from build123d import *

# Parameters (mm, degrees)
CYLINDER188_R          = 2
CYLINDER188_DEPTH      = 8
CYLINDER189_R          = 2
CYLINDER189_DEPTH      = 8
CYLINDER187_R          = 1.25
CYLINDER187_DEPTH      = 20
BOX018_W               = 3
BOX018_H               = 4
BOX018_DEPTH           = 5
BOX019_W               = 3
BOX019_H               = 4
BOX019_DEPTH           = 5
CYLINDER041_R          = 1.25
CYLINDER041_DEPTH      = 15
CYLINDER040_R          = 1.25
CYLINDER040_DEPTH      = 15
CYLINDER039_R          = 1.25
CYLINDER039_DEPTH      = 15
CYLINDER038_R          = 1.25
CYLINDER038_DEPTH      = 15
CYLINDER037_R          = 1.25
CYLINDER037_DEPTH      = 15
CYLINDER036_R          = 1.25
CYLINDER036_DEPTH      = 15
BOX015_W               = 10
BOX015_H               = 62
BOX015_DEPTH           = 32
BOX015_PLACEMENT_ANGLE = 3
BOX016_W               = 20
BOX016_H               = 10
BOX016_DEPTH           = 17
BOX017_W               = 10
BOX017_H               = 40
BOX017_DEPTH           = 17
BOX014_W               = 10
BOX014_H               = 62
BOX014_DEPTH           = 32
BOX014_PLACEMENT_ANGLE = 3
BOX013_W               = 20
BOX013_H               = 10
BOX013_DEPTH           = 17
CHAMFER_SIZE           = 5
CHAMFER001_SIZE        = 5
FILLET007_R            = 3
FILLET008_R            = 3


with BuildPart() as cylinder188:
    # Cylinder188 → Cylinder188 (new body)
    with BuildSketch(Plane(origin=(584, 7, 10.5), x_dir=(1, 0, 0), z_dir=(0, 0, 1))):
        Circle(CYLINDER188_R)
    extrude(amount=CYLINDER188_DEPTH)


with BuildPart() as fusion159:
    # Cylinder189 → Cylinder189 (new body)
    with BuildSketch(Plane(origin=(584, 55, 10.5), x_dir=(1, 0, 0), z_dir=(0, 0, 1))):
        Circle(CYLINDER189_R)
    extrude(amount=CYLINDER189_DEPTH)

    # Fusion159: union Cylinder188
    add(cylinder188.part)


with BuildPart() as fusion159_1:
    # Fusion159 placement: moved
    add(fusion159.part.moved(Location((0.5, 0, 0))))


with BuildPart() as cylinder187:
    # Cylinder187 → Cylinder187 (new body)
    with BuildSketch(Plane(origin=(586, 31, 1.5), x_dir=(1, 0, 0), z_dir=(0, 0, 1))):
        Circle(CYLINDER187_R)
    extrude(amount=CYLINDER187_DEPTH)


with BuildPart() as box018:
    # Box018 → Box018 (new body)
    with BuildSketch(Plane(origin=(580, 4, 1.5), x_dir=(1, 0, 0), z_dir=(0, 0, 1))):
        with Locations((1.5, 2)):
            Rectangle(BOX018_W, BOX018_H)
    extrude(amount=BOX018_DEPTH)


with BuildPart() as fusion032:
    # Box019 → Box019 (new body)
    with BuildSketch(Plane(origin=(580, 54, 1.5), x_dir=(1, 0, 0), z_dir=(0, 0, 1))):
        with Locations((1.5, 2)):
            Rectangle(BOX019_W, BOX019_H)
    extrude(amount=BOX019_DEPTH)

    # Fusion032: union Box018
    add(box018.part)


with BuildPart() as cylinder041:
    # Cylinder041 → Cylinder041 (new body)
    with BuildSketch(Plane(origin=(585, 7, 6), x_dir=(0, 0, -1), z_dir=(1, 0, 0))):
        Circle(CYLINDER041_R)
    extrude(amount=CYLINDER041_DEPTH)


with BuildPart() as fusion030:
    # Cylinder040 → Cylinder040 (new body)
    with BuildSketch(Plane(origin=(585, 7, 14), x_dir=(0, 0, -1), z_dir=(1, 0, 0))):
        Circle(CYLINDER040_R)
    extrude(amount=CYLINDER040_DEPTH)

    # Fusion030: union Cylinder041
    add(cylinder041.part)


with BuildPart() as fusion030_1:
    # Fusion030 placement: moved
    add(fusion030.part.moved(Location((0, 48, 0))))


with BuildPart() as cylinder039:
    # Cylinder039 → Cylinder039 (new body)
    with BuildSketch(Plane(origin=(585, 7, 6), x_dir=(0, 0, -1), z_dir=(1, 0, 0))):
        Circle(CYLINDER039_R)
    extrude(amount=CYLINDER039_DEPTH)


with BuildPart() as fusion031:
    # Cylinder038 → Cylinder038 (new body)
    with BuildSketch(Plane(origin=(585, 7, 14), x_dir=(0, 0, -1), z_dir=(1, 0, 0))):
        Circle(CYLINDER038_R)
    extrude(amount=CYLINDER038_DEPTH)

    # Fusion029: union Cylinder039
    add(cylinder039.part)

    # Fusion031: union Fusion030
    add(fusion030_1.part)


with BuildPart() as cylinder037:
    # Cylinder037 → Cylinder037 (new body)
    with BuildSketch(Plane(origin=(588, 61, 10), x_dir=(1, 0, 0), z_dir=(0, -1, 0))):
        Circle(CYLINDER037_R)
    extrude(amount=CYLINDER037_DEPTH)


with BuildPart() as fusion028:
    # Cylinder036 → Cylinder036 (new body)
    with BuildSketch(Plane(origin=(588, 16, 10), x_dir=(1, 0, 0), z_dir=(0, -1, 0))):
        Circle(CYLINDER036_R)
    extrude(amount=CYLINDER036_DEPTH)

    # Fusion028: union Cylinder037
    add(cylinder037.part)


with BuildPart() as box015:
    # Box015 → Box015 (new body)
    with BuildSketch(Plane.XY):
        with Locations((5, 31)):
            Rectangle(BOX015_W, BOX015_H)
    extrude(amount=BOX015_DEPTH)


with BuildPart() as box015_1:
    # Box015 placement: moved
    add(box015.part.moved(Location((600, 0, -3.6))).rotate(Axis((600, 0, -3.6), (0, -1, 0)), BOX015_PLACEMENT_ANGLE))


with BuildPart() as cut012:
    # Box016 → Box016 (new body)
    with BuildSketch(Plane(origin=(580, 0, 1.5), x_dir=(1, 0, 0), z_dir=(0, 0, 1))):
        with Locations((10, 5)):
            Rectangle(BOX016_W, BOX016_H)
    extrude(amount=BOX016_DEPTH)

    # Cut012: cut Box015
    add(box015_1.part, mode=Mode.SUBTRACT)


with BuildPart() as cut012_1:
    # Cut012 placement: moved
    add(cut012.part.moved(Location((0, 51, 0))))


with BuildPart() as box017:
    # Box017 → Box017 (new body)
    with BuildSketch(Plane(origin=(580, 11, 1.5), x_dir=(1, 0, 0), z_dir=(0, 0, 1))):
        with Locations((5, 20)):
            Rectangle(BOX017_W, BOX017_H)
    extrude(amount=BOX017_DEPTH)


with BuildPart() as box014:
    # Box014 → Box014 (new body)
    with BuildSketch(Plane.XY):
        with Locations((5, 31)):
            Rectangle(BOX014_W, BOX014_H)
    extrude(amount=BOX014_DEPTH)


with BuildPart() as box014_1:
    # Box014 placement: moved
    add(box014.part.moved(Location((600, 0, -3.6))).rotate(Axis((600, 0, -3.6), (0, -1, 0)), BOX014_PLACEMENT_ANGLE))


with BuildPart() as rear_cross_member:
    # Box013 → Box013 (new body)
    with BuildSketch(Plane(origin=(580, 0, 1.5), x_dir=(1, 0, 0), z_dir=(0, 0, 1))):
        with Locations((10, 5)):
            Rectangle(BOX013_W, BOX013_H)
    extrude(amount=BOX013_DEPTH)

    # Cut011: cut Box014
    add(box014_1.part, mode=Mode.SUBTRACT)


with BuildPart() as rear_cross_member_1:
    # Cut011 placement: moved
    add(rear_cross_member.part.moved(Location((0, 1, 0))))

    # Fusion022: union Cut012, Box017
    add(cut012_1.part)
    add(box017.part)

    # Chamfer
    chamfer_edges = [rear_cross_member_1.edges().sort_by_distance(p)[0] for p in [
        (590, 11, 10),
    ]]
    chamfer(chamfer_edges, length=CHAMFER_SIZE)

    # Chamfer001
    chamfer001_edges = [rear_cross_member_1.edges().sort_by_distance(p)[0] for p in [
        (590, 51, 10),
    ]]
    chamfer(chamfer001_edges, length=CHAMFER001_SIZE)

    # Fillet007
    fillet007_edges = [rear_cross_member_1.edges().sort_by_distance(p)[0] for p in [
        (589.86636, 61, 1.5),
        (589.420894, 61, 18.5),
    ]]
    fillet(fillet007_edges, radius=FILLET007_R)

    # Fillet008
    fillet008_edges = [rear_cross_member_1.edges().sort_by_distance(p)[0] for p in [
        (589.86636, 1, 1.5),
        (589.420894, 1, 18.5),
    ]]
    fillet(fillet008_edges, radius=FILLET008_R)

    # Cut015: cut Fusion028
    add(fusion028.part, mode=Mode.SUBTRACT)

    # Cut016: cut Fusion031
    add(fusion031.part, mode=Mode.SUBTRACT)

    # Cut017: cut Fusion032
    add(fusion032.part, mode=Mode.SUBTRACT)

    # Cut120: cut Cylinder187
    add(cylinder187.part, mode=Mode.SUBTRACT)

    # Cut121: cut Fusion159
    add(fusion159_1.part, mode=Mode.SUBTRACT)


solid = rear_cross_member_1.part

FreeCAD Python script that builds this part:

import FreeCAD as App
import Part
import Sketcher


def edges_at(feature, points):
    """Names of the edges that pass closest to the given points."""
    edges = feature.Shape.Edges
    near = lambda p: min(range(len(edges)), key=lambda i: edges[i].distToShape(Part.Vertex(*p))[0])
    return sorted({f"Edge{near(p) + 1}" for p in points})

doc = App.newDocument("Part")
params = doc.addObject("Spreadsheet::Sheet", "Params")
for row, (alias, value) in enumerate([
    ("sketch1_diameter", "4 mm"),
    ("pad1_length", "8 mm"),
    ("sketch2_diameter", "4 mm"),
    ("pad2_length", "8 mm"),
    ("sketch3_diameter", "2.5 mm"),
    ("pad3_length", "20 mm"),
    ("sketch4_width", "3 mm"),
    ("sketch4_height", "4 mm"),
    ("pad4_length", "5 mm"),
    ("sketch5_width", "3 mm"),
    ("sketch5_height", "4 mm"),
    ("pad5_length", "5 mm"),
    ("sketch6_diameter", "2.5 mm"),
    ("pad6_length", "15 mm"),
    ("sketch7_diameter", "2.5 mm"),
    ("pad7_length", "15 mm"),
    ("sketch8_diameter", "2.5 mm"),
    ("pad8_length", "15 mm"),
    ("sketch9_diameter", "2.5 mm"),
    ("pad9_length", "15 mm"),
    ("sketch10_diameter", "2.5 mm"),
    ("pad10_length", "15 mm"),
    ("sketch11_diameter", "2.5 mm"),
    ("pad11_length", "15 mm"),
    ("sketch12_width", "10 mm"),
    ("sketch12_height", "62 mm"),
    ("pad12_length", "32 mm"),
    ("sketch13_width", "20 mm"),
    ("sketch13_height", "10 mm"),
    ("pad13_length", "17 mm"),
    ("sketch14_width", "10 mm"),
    ("sketch14_height", "40 mm"),
    ("pad14_length", "17 mm"),
    ("sketch15_width", "10 mm"),
    ("sketch15_height", "62 mm"),
    ("pad15_length", "32 mm"),
    ("sketch16_width", "20 mm"),
    ("sketch16_height", "10 mm"),
    ("pad16_length", "17 mm"),
    ("chamfer_size", "5 mm"),
    ("chamfer2_size", "5 mm"),
    ("fillet_radius", "3 mm"),
    ("fillet2_radius", "3 mm"),
], start=1):
    params.set(f"A{row}", alias)
    params.set(f"B{row}", "=" + value)
    params.setAlias(f"B{row}", alias)

body = doc.addObject("PartDesign::Body", "Body")

sketch1 = body.newObject("Sketcher::SketchObject", "Sketch")
sketch1.AttachmentSupport = (doc.getObject("XY_Plane"), [""])
sketch1.MapMode = "FlatFace"
sketch1.AttachmentOffset = App.Placement(App.Vector(0, 0, 10.5), App.Rotation())
sketch1.addGeometry(Part.Circle(App.Vector(584, 7, 0), App.Vector(0, 0, 1), 2), False)
sketch1.addConstraint(Sketcher.Constraint("Diameter", 0, 4.0))
sketch1.addConstraint(Sketcher.Constraint("DistanceX", -1, 1, 0, 3, 584.0))
sketch1.addConstraint(Sketcher.Constraint("DistanceY", -1, 1, 0, 3, 7.0))
sketch1.setExpression("Constraints[0]", "Params.sketch1_diameter")
pad1 = body.newObject("PartDesign::Pad", "Pad")
pad1.Profile = sketch1
pad1.setExpression("Length", "Params.pad1_length")
body2 = doc.addObject("PartDesign::Body", "Body001")
body2.AllowCompound = True

sketch2 = body2.newObject("Sketcher::SketchObject", "Sketch001")
sketch2.AttachmentSupport = (doc.getObject("XY_Plane001"), [""])
sketch2.MapMode = "FlatFace"
sketch2.AttachmentOffset = App.Placement(App.Vector(0, 0, 10.5), App.Rotation())
sketch2.addGeometry(Part.Circle(App.Vector(584, 55, 0), App.Vector(0, 0, 1), 2), False)
sketch2.addConstraint(Sketcher.Constraint("Diameter", 0, 4.0))
sketch2.addConstraint(Sketcher.Constraint("DistanceX", -1, 1, 0, 3, 584.0))
sketch2.addConstraint(Sketcher.Constraint("DistanceY", -1, 1, 0, 3, 55.0))
sketch2.setExpression("Constraints[0]", "Params.sketch2_diameter")
pad2 = body2.newObject("PartDesign::Pad", "Pad001")
pad2.Profile = sketch2
pad2.setExpression("Length", "Params.pad2_length")
doc.recompute()

boolean = body2.newObject("PartDesign::Boolean", "Boolean")
boolean.Type = "Fuse"
boolean.addObjects([body])
body3 = doc.addObject("PartDesign::Body", "Body002")
body3.AllowCompound = True
doc.recompute()

body2.Placement = App.Placement(App.Vector(0.5, 0, 0), App.Rotation(App.Vector(0, 0, 1), 0))
boolean2 = body3.newObject("PartDesign::Boolean", "Boolean001")
boolean2.Type = "Fuse"
boolean2.addObjects([body2])
body4 = doc.addObject("PartDesign::Body", "Body003")

sketch3 = body4.newObject("Sketcher::SketchObject", "Sketch002")
sketch3.AttachmentSupport = (doc.getObject("XY_Plane003"), [""])
sketch3.MapMode = "FlatFace"
sketch3.AttachmentOffset = App.Placement(App.Vector(0, 0, 1.5), App.Rotation())
sketch3.addGeometry(Part.Circle(App.Vector(586, 31, 0), App.Vector(0, 0, 1), 1.2), False)
sketch3.addConstraint(Sketcher.Constraint("Diameter", 0, 2.5))
sketch3.addConstraint(Sketcher.Constraint("DistanceX", -1, 1, 0, 3, 586.0))
sketch3.addConstraint(Sketcher.Constraint("DistanceY", -1, 1, 0, 3, 31.0))
sketch3.setExpression("Constraints[0]", "Params.sketch3_diameter")
pad3 = body4.newObject("PartDesign::Pad", "Pad002")
pad3.Profile = sketch3
pad3.setExpression("Length", "Params.pad3_length")
body5 = doc.addObject("PartDesign::Body", "Body004")

sketch4 = body5.newObject("Sketcher::SketchObject", "Sketch003")
sketch4.AttachmentSupport = (doc.getObject("XY_Plane004"), [""])
sketch4.MapMode = "FlatFace"
sketch4.AttachmentOffset = App.Placement(App.Vector(0, 0, 1.5), App.Rotation())
sketch4.addGeometry(Part.LineSegment(App.Vector(580, 8, 0), App.Vector(580, 4, 0)), False)
sketch4.addGeometry(Part.LineSegment(App.Vector(580, 4, 0), App.Vector(583, 4, 0)), False)
sketch4.addGeometry(Part.LineSegment(App.Vector(583, 4, 0), App.Vector(583, 8, 0)), False)
sketch4.addGeometry(Part.LineSegment(App.Vector(583, 8, 0), App.Vector(580, 8, 0)), False)
sketch4.addConstraint(Sketcher.Constraint("Coincident", 0, 2, 1, 1))
sketch4.addConstraint(Sketcher.Constraint("Coincident", 1, 2, 2, 1))
sketch4.addConstraint(Sketcher.Constraint("Coincident", 2, 2, 3, 1))
sketch4.addConstraint(Sketcher.Constraint("Coincident", 3, 2, 0, 1))
sketch4.addConstraint(Sketcher.Constraint("Vertical", 0))
sketch4.addConstraint(Sketcher.Constraint("Horizontal", 1))
sketch4.addConstraint(Sketcher.Constraint("Vertical", 2))
sketch4.addConstraint(Sketcher.Constraint("Horizontal", 3))
sketch4.addConstraint(Sketcher.Constraint("DistanceX", 1, 1, 1, 2, 3.0))
sketch4.addConstraint(Sketcher.Constraint("DistanceY", 0, 2, 0, 1, 4.0))
sketch4.addConstraint(Sketcher.Constraint("DistanceX", -1, 1, 0, 2, 580.0))
sketch4.addConstraint(Sketcher.Constraint("DistanceY", -1, 1, 0, 2, 4.0))
sketch4.setExpression("Constraints[8]", "Params.sketch4_width")
sketch4.setExpression("Constraints[9]", "Params.sketch4_height")
pad4 = body5.newObject("PartDesign::Pad", "Pad003")
pad4.Profile = sketch4
pad4.setExpression("Length", "Params.pad4_length")
body6 = doc.addObject("PartDesign::Body", "Body005")
body6.AllowCompound = True

sketch5 = body6.newObject("Sketcher::SketchObject", "Sketch004")
sketch5.AttachmentSupport = (doc.getObject("XY_Plane005"), [""])
sketch5.MapMode = "FlatFace"
sketch5.AttachmentOffset = App.Placement(App.Vector(0, 0, 1.5), App.Rotation())
sketch5.addGeometry(Part.LineSegment(App.Vector(580, 58, 0), App.Vector(580, 54, 0)), False)
sketch5.addGeometry(Part.LineSegment(App.Vector(580, 54, 0), App.Vector(583, 54, 0)), False)
sketch5.addGeometry(Part.LineSegment(App.Vector(583, 54, 0), App.Vector(583, 58, 0)), False)
sketch5.addGeometry(Part.LineSegment(App.Vector(583, 58, 0), App.Vector(580, 58, 0)), False)
sketch5.addConstraint(Sketcher.Constraint("Coincident", 0, 2, 1, 1))
sketch5.addConstraint(Sketcher.Constraint("Coincident", 1, 2, 2, 1))
sketch5.addConstraint(Sketcher.Constraint("Coincident", 2, 2, 3, 1))
sketch5.addConstraint(Sketcher.Constraint("Coincident", 3, 2, 0, 1))
sketch5.addConstraint(Sketcher.Constraint("Vertical", 0))
sketch5.addConstraint(Sketcher.Constraint("Horizontal", 1))
sketch5.addConstraint(Sketcher.Constraint("Vertical", 2))
sketch5.addConstraint(Sketcher.Constraint("Horizontal", 3))
sketch5.addConstraint(Sketcher.Constraint("DistanceX", 1, 1, 1, 2, 3.0))
sketch5.addConstraint(Sketcher.Constraint("DistanceY", 0, 2, 0, 1, 4.0))
sketch5.addConstraint(Sketcher.Constraint("DistanceX", -1, 1, 0, 2, 580.0))
sketch5.addConstraint(Sketcher.Constraint("DistanceY", -1, 1, 0, 2, 54.0))
sketch5.setExpression("Constraints[8]", "Params.sketch5_width")
sketch5.setExpression("Constraints[9]", "Params.sketch5_height")
pad5 = body6.newObject("PartDesign::Pad", "Pad004")
pad5.Profile = sketch5
pad5.setExpression("Length", "Params.pad5_length")
doc.recompute()

boolean3 = body6.newObject("PartDesign::Boolean", "Boolean002")
boolean3.Type = "Fuse"
boolean3.addObjects([body5])
body7 = doc.addObject("PartDesign::Body", "Body006")

sketch6 = body7.newObject("Sketcher::SketchObject", "Sketch005")
sketch6.AttachmentSupport = (doc.getObject("YZ_Plane006"), [""])
sketch6.MapMode = "FlatFace"
sketch6.AttachmentOffset = App.Placement(App.Vector(0, 0, 585), App.Rotation())
sketch6.addGeometry(Part.Circle(App.Vector(7, 6, 0), App.Vector(0, 0, 1), 1.2), False)
sketch6.addConstraint(Sketcher.Constraint("Diameter", 0, 2.5))
sketch6.addConstraint(Sketcher.Constraint("DistanceX", -1, 1, 0, 3, 7.0))
sketch6.addConstraint(Sketcher.Constraint("DistanceY", -1, 1, 0, 3, 6.0))
sketch6.setExpression("Constraints[0]", "Params.sketch6_diameter")
pad6 = body7.newObject("PartDesign::Pad", "Pad005")
pad6.Profile = sketch6
pad6.setExpression("Length", "Params.pad6_length")
body8 = doc.addObject("PartDesign::Body", "Body007")
body8.AllowCompound = True

sketch7 = body8.newObject("Sketcher::SketchObject", "Sketch006")
sketch7.AttachmentSupport = (doc.getObject("YZ_Plane007"), [""])
sketch7.MapMode = "FlatFace"
sketch7.AttachmentOffset = App.Placement(App.Vector(0, 0, 585), App.Rotation())
sketch7.addGeometry(Part.Circle(App.Vector(7, 14, 0), App.Vector(0, 0, 1), 1.2), False)
sketch7.addConstraint(Sketcher.Constraint("Diameter", 0, 2.5))
sketch7.addConstraint(Sketcher.Constraint("DistanceX", -1, 1, 0, 3, 7.0))
sketch7.addConstraint(Sketcher.Constraint("DistanceY", -1, 1, 0, 3, 14.0))
sketch7.setExpression("Constraints[0]", "Params.sketch7_diameter")
pad7 = body8.newObject("PartDesign::Pad", "Pad006")
pad7.Profile = sketch7
pad7.setExpression("Length", "Params.pad7_length")
doc.recompute()

boolean4 = body8.newObject("PartDesign::Boolean", "Boolean003")
boolean4.Type = "Fuse"
boolean4.addObjects([body7])
body9 = doc.addObject("PartDesign::Body", "Body008")
body9.AllowCompound = True
doc.recompute()

body8.Placement = App.Placement(App.Vector(0, 48, 0), App.Rotation(App.Vector(0, 0, 1), 0))
boolean5 = body9.newObject("PartDesign::Boolean", "Boolean004")
boolean5.Type = "Fuse"
boolean5.addObjects([body8])
body10 = doc.addObject("PartDesign::Body", "Body009")

sketch8 = body10.newObject("Sketcher::SketchObject", "Sketch007")
sketch8.AttachmentSupport = (doc.getObject("YZ_Plane009"), [""])
sketch8.MapMode = "FlatFace"
sketch8.AttachmentOffset = App.Placement(App.Vector(0, 0, 585), App.Rotation())
sketch8.addGeometry(Part.Circle(App.Vector(7, 6, 0), App.Vector(0, 0, 1), 1.2), False)
sketch8.addConstraint(Sketcher.Constraint("Diameter", 0, 2.5))
sketch8.addConstraint(Sketcher.Constraint("DistanceX", -1, 1, 0, 3, 7.0))
sketch8.addConstraint(Sketcher.Constraint("DistanceY", -1, 1, 0, 3, 6.0))
sketch8.setExpression("Constraints[0]", "Params.sketch8_diameter")
pad8 = body10.newObject("PartDesign::Pad", "Pad007")
pad8.Profile = sketch8
pad8.setExpression("Length", "Params.pad8_length")
body11 = doc.addObject("PartDesign::Body", "Body010")
body11.AllowCompound = True

sketch9 = body11.newObject("Sketcher::SketchObject", "Sketch008")
sketch9.AttachmentSupport = (doc.getObject("YZ_Plane010"), [""])
sketch9.MapMode = "FlatFace"
sketch9.AttachmentOffset = App.Placement(App.Vector(0, 0, 585), App.Rotation())
sketch9.addGeometry(Part.Circle(App.Vector(7, 14, 0), App.Vector(0, 0, 1), 1.2), False)
sketch9.addConstraint(Sketcher.Constraint("Diameter", 0, 2.5))
sketch9.addConstraint(Sketcher.Constraint("DistanceX", -1, 1, 0, 3, 7.0))
sketch9.addConstraint(Sketcher.Constraint("DistanceY", -1, 1, 0, 3, 14.0))
sketch9.setExpression("Constraints[0]", "Params.sketch9_diameter")
pad9 = body11.newObject("PartDesign::Pad", "Pad008")
pad9.Profile = sketch9
pad9.setExpression("Length", "Params.pad9_length")
doc.recompute()

boolean6 = body11.newObject("PartDesign::Boolean", "Boolean005")
boolean6.Type = "Fuse"
boolean6.addObjects([body10])
doc.recompute()

boolean7 = body11.newObject("PartDesign::Boolean", "Boolean006")
boolean7.Type = "Fuse"
boolean7.addObjects([body9])
body12 = doc.addObject("PartDesign::Body", "Body011")

sketch10 = body12.newObject("Sketcher::SketchObject", "Sketch009")
sketch10.AttachmentSupport = (doc.getObject("XZ_Plane011"), [""])
sketch10.MapMode = "FlatFace"
sketch10.AttachmentOffset = App.Placement(App.Vector(0, 0, -61), App.Rotation())
sketch10.addGeometry(Part.Circle(App.Vector(588, 10, 0), App.Vector(0, 0, 1), 1.2), False)
sketch10.addConstraint(Sketcher.Constraint("Diameter", 0, 2.5))
sketch10.addConstraint(Sketcher.Constraint("DistanceX", -1, 1, 0, 3, 588.0))
sketch10.addConstraint(Sketcher.Constraint("DistanceY", -1, 1, 0, 3, 10.0))
sketch10.setExpression("Constraints[0]", "Params.sketch10_diameter")
pad10 = body12.newObject("PartDesign::Pad", "Pad009")
pad10.Profile = sketch10
pad10.setExpression("Length", "Params.pad10_length")
body13 = doc.addObject("PartDesign::Body", "Body012")
body13.AllowCompound = True

sketch11 = body13.newObject("Sketcher::SketchObject", "Sketch010")
sketch11.AttachmentSupport = (doc.getObject("XZ_Plane012"), [""])
sketch11.MapMode = "FlatFace"
sketch11.AttachmentOffset = App.Placement(App.Vector(0, 0, -16), App.Rotation())
sketch11.addGeometry(Part.Circle(App.Vector(588, 10, 0), App.Vector(0, 0, 1), 1.2), False)
sketch11.addConstraint(Sketcher.Constraint("Diameter", 0, 2.5))
sketch11.addConstraint(Sketcher.Constraint("DistanceX", -1, 1, 0, 3, 588.0))
sketch11.addConstraint(Sketcher.Constraint("DistanceY", -1, 1, 0, 3, 10.0))
sketch11.setExpression("Constraints[0]", "Params.sketch11_diameter")
pad11 = body13.newObject("PartDesign::Pad", "Pad010")
pad11.Profile = sketch11
pad11.setExpression("Length", "Params.pad11_length")
doc.recompute()

boolean8 = body13.newObject("PartDesign::Boolean", "Boolean007")
boolean8.Type = "Fuse"
boolean8.addObjects([body12])
body14 = doc.addObject("PartDesign::Body", "Body013")

sketch12 = body14.newObject("Sketcher::SketchObject", "Sketch011")
sketch12.AttachmentSupport = (doc.getObject("XY_Plane013"), [""])
sketch12.MapMode = "FlatFace"
sketch12.addGeometry(Part.LineSegment(App.Vector(0, 62, 0), App.Vector(0, 0, 0)), False)
sketch12.addGeometry(Part.LineSegment(App.Vector(0, 0, 0), App.Vector(10, 0, 0)), False)
sketch12.addGeometry(Part.LineSegment(App.Vector(10, 0, 0), App.Vector(10, 62, 0)), False)
sketch12.addGeometry(Part.LineSegment(App.Vector(10, 62, 0), App.Vector(0, 62, 0)), False)
sketch12.addConstraint(Sketcher.Constraint("Coincident", 0, 2, 1, 1))
sketch12.addConstraint(Sketcher.Constraint("Coincident", 1, 2, 2, 1))
sketch12.addConstraint(Sketcher.Constraint("Coincident", 2, 2, 3, 1))
sketch12.addConstraint(Sketcher.Constraint("Coincident", 3, 2, 0, 1))
sketch12.addConstraint(Sketcher.Constraint("Vertical", 0))
sketch12.addConstraint(Sketcher.Constraint("Horizontal", 1))
sketch12.addConstraint(Sketcher.Constraint("Vertical", 2))
sketch12.addConstraint(Sketcher.Constraint("Horizontal", 3))
sketch12.addConstraint(Sketcher.Constraint("Coincident", 0, 2, -1, 1))
sketch12.addConstraint(Sketcher.Constraint("DistanceX", 1, 1, 1, 2, 10.0))
sketch12.addConstraint(Sketcher.Constraint("DistanceY", 0, 2, 0, 1, 62.0))
sketch12.setExpression("Constraints[9]", "Params.sketch12_width")
sketch12.setExpression("Constraints[10]", "Params.sketch12_height")
pad12 = body14.newObject("PartDesign::Pad", "Pad011")
pad12.Profile = sketch12
pad12.setExpression("Length", "Params.pad12_length")
body15 = doc.addObject("PartDesign::Body", "Body014")
doc.recompute()

body14.Placement = App.Placement(App.Vector(600, 0, -3.6), App.Rotation(App.Vector(0, -1, 0), 3))
boolean9 = body15.newObject("PartDesign::Boolean", "Boolean008")
boolean9.Type = "Fuse"
boolean9.addObjects([body14])
body16 = doc.addObject("PartDesign::Body", "Body015")

sketch13 = body16.newObject("Sketcher::SketchObject", "Sketch012")
sketch13.AttachmentSupport = (doc.getObject("XY_Plane015"), [""])
sketch13.MapMode = "FlatFace"
sketch13.AttachmentOffset = App.Placement(App.Vector(0, 0, 1.5), App.Rotation())
sketch13.addGeometry(Part.LineSegment(App.Vector(580, 10, 0), App.Vector(580, 0, 0)), False)
sketch13.addGeometry(Part.LineSegment(App.Vector(580, 0, 0), App.Vector(600, 0, 0)), False)
sketch13.addGeometry(Part.LineSegment(App.Vector(600, 0, 0), App.Vector(600, 10, 0)), False)
sketch13.addGeometry(Part.LineSegment(App.Vector(600, 10, 0), App.Vector(580, 10, 0)), False)
sketch13.addConstraint(Sketcher.Constraint("Coincident", 0, 2, 1, 1))
sketch13.addConstraint(Sketcher.Constraint("Coincident", 1, 2, 2, 1))
sketch13.addConstraint(Sketcher.Constraint("Coincident", 2, 2, 3, 1))
sketch13.addConstraint(Sketcher.Constraint("Coincident", 3, 2, 0, 1))
sketch13.addConstraint(Sketcher.Constraint("Vertical", 0))
sketch13.addConstraint(Sketcher.Constraint("Horizontal", 1))
sketch13.addConstraint(Sketcher.Constraint("Vertical", 2))
sketch13.addConstraint(Sketcher.Constraint("Horizontal", 3))
sketch13.addConstraint(Sketcher.Constraint("PointOnObject", 0, 2, -1))
sketch13.addConstraint(Sketcher.Constraint("DistanceX", 1, 1, 1, 2, 20.0))
sketch13.addConstraint(Sketcher.Constraint("DistanceY", 0, 2, 0, 1, 10.0))
sketch13.addConstraint(Sketcher.Constraint("DistanceX", -1, 1, 0, 2, 580.0))
sketch13.setExpression("Constraints[9]", "Params.sketch13_width")
sketch13.setExpression("Constraints[10]", "Params.sketch13_height")
pad13 = body16.newObject("PartDesign::Pad", "Pad012")
pad13.Profile = sketch13
pad13.setExpression("Length", "Params.pad13_length")
doc.recompute()

boolean10 = body16.newObject("PartDesign::Boolean", "Boolean009")
boolean10.Type = "Cut"
boolean10.addObjects([body15])
body17 = doc.addObject("PartDesign::Body", "Body016")
doc.recompute()

body16.Placement = App.Placement(App.Vector(0, 51, 0), App.Rotation(App.Vector(0, 0, 1), 0))
boolean11 = body17.newObject("PartDesign::Boolean", "Boolean010")
boolean11.Type = "Fuse"
boolean11.addObjects([body16])
body18 = doc.addObject("PartDesign::Body", "Body017")

sketch14 = body18.newObject("Sketcher::SketchObject", "Sketch013")
sketch14.AttachmentSupport = (doc.getObject("XY_Plane017"), [""])
sketch14.MapMode = "FlatFace"
sketch14.AttachmentOffset = App.Placement(App.Vector(0, 0, 1.5), App.Rotation())
sketch14.addGeometry(Part.LineSegment(App.Vector(580, 51, 0), App.Vector(580, 11, 0)), False)
sketch14.addGeometry(Part.LineSegment(App.Vector(580, 11, 0), App.Vector(590, 11, 0)), False)
sketch14.addGeometry(Part.LineSegment(App.Vector(590, 11, 0), App.Vector(590, 51, 0)), False)
sketch14.addGeometry(Part.LineSegment(App.Vector(590, 51, 0), App.Vector(580, 51, 0)), False)
sketch14.addConstraint(Sketcher.Constraint("Coincident", 0, 2, 1, 1))
sketch14.addConstraint(Sketcher.Constraint("Coincident", 1, 2, 2, 1))
sketch14.addConstraint(Sketcher.Constraint("Coincident", 2, 2, 3, 1))
sketch14.addConstraint(Sketcher.Constraint("Coincident", 3, 2, 0, 1))
sketch14.addConstraint(Sketcher.Constraint("Vertical", 0))
sketch14.addConstraint(Sketcher.Constraint("Horizontal", 1))
sketch14.addConstraint(Sketcher.Constraint("Vertical", 2))
sketch14.addConstraint(Sketcher.Constraint("Horizontal", 3))
sketch14.addConstraint(Sketcher.Constraint("DistanceX", 1, 1, 1, 2, 10.0))
sketch14.addConstraint(Sketcher.Constraint("DistanceY", 0, 2, 0, 1, 40.0))
sketch14.addConstraint(Sketcher.Constraint("DistanceX", -1, 1, 0, 2, 580.0))
sketch14.addConstraint(Sketcher.Constraint("DistanceY", -1, 1, 0, 2, 11.0))
sketch14.setExpression("Constraints[8]", "Params.sketch14_width")
sketch14.setExpression("Constraints[9]", "Params.sketch14_height")
pad14 = body18.newObject("PartDesign::Pad", "Pad013")
pad14.Profile = sketch14
pad14.setExpression("Length", "Params.pad14_length")
body19 = doc.addObject("PartDesign::Body", "Body018")

sketch15 = body19.newObject("Sketcher::SketchObject", "Sketch014")
sketch15.AttachmentSupport = (doc.getObject("XY_Plane018"), [""])
sketch15.MapMode = "FlatFace"
sketch15.addGeometry(Part.LineSegment(App.Vector(0, 62, 0), App.Vector(0, 0, 0)), False)
sketch15.addGeometry(Part.LineSegment(App.Vector(0, 0, 0), App.Vector(10, 0, 0)), False)
sketch15.addGeometry(Part.LineSegment(App.Vector(10, 0, 0), App.Vector(10, 62, 0)), False)
sketch15.addGeometry(Part.LineSegment(App.Vector(10, 62, 0), App.Vector(0, 62, 0)), False)
sketch15.addConstraint(Sketcher.Constraint("Coincident", 0, 2, 1, 1))
sketch15.addConstraint(Sketcher.Constraint("Coincident", 1, 2, 2, 1))
sketch15.addConstraint(Sketcher.Constraint("Coincident", 2, 2, 3, 1))
sketch15.addConstraint(Sketcher.Constraint("Coincident", 3, 2, 0, 1))
sketch15.addConstraint(Sketcher.Constraint("Vertical", 0))
sketch15.addConstraint(Sketcher.Constraint("Horizontal", 1))
sketch15.addConstraint(Sketcher.Constraint("Vertical", 2))
sketch15.addConstraint(Sketcher.Constraint("Horizontal", 3))
sketch15.addConstraint(Sketcher.Constraint("Coincident", 0, 2, -1, 1))
sketch15.addConstraint(Sketcher.Constraint("DistanceX", 1, 1, 1, 2, 10.0))
sketch15.addConstraint(Sketcher.Constraint("DistanceY", 0, 2, 0, 1, 62.0))
sketch15.setExpression("Constraints[9]", "Params.sketch15_width")
sketch15.setExpression("Constraints[10]", "Params.sketch15_height")
pad15 = body19.newObject("PartDesign::Pad", "Pad014")
pad15.Profile = sketch15
pad15.setExpression("Length", "Params.pad15_length")
body20 = doc.addObject("PartDesign::Body", "Body019")
doc.recompute()

body19.Placement = App.Placement(App.Vector(600, 0, -3.6), App.Rotation(App.Vector(0, -1, 0), 3))
boolean12 = body20.newObject("PartDesign::Boolean", "Boolean011")
boolean12.Type = "Fuse"
boolean12.addObjects([body19])
body21 = doc.addObject("PartDesign::Body", "Body020")

sketch16 = body21.newObject("Sketcher::SketchObject", "Sketch015")
sketch16.AttachmentSupport = (doc.getObject("XY_Plane020"), [""])
sketch16.MapMode = "FlatFace"
sketch16.AttachmentOffset = App.Placement(App.Vector(0, 0, 1.5), App.Rotation())
sketch16.addGeometry(Part.LineSegment(App.Vector(580, 10, 0), App.Vector(580, 0, 0)), False)
sketch16.addGeometry(Part.LineSegment(App.Vector(580, 0, 0), App.Vector(600, 0, 0)), False)
sketch16.addGeometry(Part.LineSegment(App.Vector(600, 0, 0), App.Vector(600, 10, 0)), False)
sketch16.addGeometry(Part.LineSegment(App.Vector(600, 10, 0), App.Vector(580, 10, 0)), False)
sketch16.addConstraint(Sketcher.Constraint("Coincident", 0, 2, 1, 1))
sketch16.addConstraint(Sketcher.Constraint("Coincident", 1, 2, 2, 1))
sketch16.addConstraint(Sketcher.Constraint("Coincident", 2, 2, 3, 1))
sketch16.addConstraint(Sketcher.Constraint("Coincident", 3, 2, 0, 1))
sketch16.addConstraint(Sketcher.Constraint("Vertical", 0))
sketch16.addConstraint(Sketcher.Constraint("Horizontal", 1))
sketch16.addConstraint(Sketcher.Constraint("Vertical", 2))
sketch16.addConstraint(Sketcher.Constraint("Horizontal", 3))
sketch16.addConstraint(Sketcher.Constraint("PointOnObject", 0, 2, -1))
sketch16.addConstraint(Sketcher.Constraint("DistanceX", 1, 1, 1, 2, 20.0))
sketch16.addConstraint(Sketcher.Constraint("DistanceY", 0, 2, 0, 1, 10.0))
sketch16.addConstraint(Sketcher.Constraint("DistanceX", -1, 1, 0, 2, 580.0))
sketch16.setExpression("Constraints[9]", "Params.sketch16_width")
sketch16.setExpression("Constraints[10]", "Params.sketch16_height")
pad16 = body21.newObject("PartDesign::Pad", "Pad015")
pad16.Profile = sketch16
pad16.setExpression("Length", "Params.pad16_length")
doc.recompute()

boolean13 = body21.newObject("PartDesign::Boolean", "Boolean012")
boolean13.Type = "Cut"
boolean13.addObjects([body20])
body22 = doc.addObject("PartDesign::Body", "Body021")
body22.AllowCompound = True
doc.recompute()

body21.Placement = App.Placement(App.Vector(0, 1, 0), App.Rotation(App.Vector(0, 0, 1), 0))
boolean14 = body22.newObject("PartDesign::Boolean", "Boolean013")
boolean14.Type = "Fuse"
boolean14.addObjects([body21])
doc.recompute()

boolean15 = body22.newObject("PartDesign::Boolean", "Boolean014")
boolean15.Type = "Fuse"
boolean15.addObjects([body17])
doc.recompute()

boolean16 = body22.newObject("PartDesign::Boolean", "Boolean015")
boolean16.Type = "Fuse"
boolean16.addObjects([body18])
doc.recompute()

chamfer = body22.newObject("PartDesign::Chamfer", "Chamfer")
chamfer.Base = (boolean16, edges_at(boolean16, [(590, 11, 10)]))
chamfer.setExpression("Size", "Params.chamfer_size")
doc.recompute()

chamfer2 = body22.newObject("PartDesign::Chamfer", "Chamfer001")
chamfer2.Base = (chamfer, edges_at(chamfer, [(590, 51, 10)]))
chamfer2.setExpression("Size", "Params.chamfer2_size")
doc.recompute()

fillet = body22.newObject("PartDesign::Fillet", "Fillet")
fillet.Base = (chamfer2, edges_at(chamfer2, [(589.866, 61, 1.5), (589.421, 61, 18.5)]))
fillet.setExpression("Radius", "Params.fillet_radius")
doc.recompute()

fillet2 = body22.newObject("PartDesign::Fillet", "Fillet001")
fillet2.Base = (fillet, edges_at(fillet, [(589.866, 1, 1.5), (589.421, 1, 18.5)]))
fillet2.setExpression("Radius", "Params.fillet2_radius")
doc.recompute()

boolean17 = body22.newObject("PartDesign::Boolean", "Boolean016")
boolean17.Type = "Cut"
boolean17.addObjects([body13])
doc.recompute()

boolean18 = body22.newObject("PartDesign::Boolean", "Boolean017")
boolean18.Type = "Cut"
boolean18.addObjects([body11])
doc.recompute()

boolean19 = body22.newObject("PartDesign::Boolean", "Boolean018")
boolean19.Type = "Cut"
boolean19.addObjects([body6])
doc.recompute()

boolean20 = body22.newObject("PartDesign::Boolean", "Boolean019")
boolean20.Type = "Cut"
boolean20.addObjects([body4])
doc.recompute()

boolean21 = body22.newObject("PartDesign::Boolean", "Boolean020")
boolean21.Type = "Cut"
boolean21.addObjects([body3])

doc.recompute()
